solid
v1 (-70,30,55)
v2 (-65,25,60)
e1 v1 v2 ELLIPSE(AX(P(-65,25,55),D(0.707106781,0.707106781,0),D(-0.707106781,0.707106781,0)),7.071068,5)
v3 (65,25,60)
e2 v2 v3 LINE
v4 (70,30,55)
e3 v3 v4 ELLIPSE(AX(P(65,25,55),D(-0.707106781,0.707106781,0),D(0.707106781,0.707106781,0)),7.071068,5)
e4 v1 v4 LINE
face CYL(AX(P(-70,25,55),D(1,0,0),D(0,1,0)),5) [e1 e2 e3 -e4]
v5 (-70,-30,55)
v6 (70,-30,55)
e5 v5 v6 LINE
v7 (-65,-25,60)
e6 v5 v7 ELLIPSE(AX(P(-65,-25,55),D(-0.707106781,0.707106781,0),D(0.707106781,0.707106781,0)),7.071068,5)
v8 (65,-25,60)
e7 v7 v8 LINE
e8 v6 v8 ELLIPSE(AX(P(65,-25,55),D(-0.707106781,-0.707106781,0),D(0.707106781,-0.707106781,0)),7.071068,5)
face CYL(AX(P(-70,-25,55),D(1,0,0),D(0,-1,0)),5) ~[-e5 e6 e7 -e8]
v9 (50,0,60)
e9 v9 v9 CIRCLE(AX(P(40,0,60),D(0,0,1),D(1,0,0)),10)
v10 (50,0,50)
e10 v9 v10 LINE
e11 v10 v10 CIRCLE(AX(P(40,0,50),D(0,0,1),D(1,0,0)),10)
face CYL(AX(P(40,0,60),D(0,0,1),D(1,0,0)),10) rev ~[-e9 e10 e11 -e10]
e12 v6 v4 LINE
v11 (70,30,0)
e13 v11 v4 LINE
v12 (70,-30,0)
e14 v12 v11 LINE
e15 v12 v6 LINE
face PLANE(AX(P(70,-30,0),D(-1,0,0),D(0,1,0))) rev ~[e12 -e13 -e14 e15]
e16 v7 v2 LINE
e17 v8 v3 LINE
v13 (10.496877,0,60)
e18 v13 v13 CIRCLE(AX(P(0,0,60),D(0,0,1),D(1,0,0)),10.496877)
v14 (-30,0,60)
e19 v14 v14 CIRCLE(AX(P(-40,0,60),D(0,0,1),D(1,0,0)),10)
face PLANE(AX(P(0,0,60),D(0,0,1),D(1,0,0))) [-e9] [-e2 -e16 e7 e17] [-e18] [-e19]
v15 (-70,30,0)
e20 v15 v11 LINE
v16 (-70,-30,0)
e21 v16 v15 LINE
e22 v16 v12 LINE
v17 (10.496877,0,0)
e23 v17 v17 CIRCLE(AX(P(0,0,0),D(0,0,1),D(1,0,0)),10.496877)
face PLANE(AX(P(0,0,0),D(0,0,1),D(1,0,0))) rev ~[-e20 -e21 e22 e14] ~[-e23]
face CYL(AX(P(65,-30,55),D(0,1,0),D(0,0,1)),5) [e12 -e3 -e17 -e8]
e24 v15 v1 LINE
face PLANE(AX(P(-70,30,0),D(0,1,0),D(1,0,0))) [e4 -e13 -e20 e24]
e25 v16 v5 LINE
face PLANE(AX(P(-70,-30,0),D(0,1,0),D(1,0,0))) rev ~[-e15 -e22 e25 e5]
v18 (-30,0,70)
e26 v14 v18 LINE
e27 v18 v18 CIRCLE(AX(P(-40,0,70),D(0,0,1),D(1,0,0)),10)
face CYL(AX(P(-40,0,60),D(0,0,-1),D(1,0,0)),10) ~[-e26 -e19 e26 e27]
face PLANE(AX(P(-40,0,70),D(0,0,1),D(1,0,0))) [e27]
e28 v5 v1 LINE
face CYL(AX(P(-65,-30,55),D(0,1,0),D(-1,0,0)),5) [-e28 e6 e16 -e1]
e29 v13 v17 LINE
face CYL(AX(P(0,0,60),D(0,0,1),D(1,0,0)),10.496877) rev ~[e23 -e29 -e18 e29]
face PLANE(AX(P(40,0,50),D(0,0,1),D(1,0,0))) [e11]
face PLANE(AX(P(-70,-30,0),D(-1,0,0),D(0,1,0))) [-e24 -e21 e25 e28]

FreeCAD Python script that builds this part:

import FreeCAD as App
import Part
import Sketcher
Q = App.Units.Quantity


def edges_at(feature, points):
    """Names of the edges that pass closest to the given points."""
    edges = feature.Shape.Edges
    near = lambda p: min(range(len(edges)), key=lambda i: edges[i].distToShape(Part.Vertex(*p))[0])
    return sorted({f"Edge{near(p) + 1}" for p in points})


def add_polygon(sketch, points):
    """Adds a closed chain of lines whose ends are joined by coincident constraints."""
    first, n = sketch.GeometryCount, len(points)
    for a, b in zip(points, points[1:] + points[:1]):
        sketch.addGeometry(Part.LineSegment(App.Vector(*a, 0), App.Vector(*b, 0)), False)
    for i in range(n):
        sketch.addConstraint(Sketcher.Constraint("Coincident", first + i, 2, first + (i + 1) % n, 1))

doc = App.newDocument("Part")
body = doc.addObject("PartDesign::Body", "Body")

# Sketch on XY plane
sketch1 = body.newObject("Sketcher::SketchObject", "Sketch")
sketch1.AttachmentSupport = (doc.getObject("XY_Plane"), [""])
sketch1.MapMode = "FlatFace"
add_polygon(sketch1, [(-70, 30), (-70, -30), (70, -30), (70, 30)])  # lines 0-3
sketch1.addConstraint(Sketcher.Constraint("Vertical", 0))
sketch1.addConstraint(Sketcher.Constraint("Horizontal", 1))
sketch1.addConstraint(Sketcher.Constraint("Vertical", 2))
sketch1.addConstraint(Sketcher.Constraint("Horizontal", 3))
sketch1.addConstraint(Sketcher.Constraint("Symmetric", 0, 2, 2, 2, -1, 1))
sketch1.addConstraint(Sketcher.Constraint("DistanceX", 1, 1, 1, 2, Q("140 mm")))
sketch1.addConstraint(Sketcher.Constraint("DistanceY", 0, 2, 0, 1, Q("60 mm")))
pad1 = body.newObject("PartDesign::Pad", "Pad")
pad1.Profile = sketch1
pad1.Length = 60

# Sketch on XY plane
sketch2 = body.newObject("Sketcher::SketchObject", "Sketch001")
sketch2.AttachmentSupport = (doc.getObject("XY_Plane"), [""])
sketch2.MapMode = "FlatFace"
sketch2.AttachmentOffset = App.Placement(App.Vector(0, 0, 60), App.Rotation())
sketch2.addGeometry(Part.Circle(App.Vector(-40, 0, 0), App.Vector(0, 0, 1), 10), False)
sketch2.addConstraint(Sketcher.Constraint("PointOnObject", 0, 3, -1))
sketch2.addConstraint(Sketcher.Constraint("Diameter", 0, Q("20 mm")))
sketch2.addConstraint(Sketcher.Constraint("DistanceX", 0, 3, -1, 1, Q("40 mm")))
pad2 = body.newObject("PartDesign::Pad", "Pad001")
pad2.Profile = sketch2
pad2.Length = 10

# Sketch on XY plane
sketch3 = body.newObject("Sketcher::SketchObject", "Sketch002")
sketch3.AttachmentSupport = (doc.getObject("XY_Plane"), [""])
sketch3.MapMode = "FlatFace"
sketch3.AttachmentOffset = App.Placement(App.Vector(0, 0, 60), App.Rotation())
sketch3.addGeometry(Part.Circle(App.Vector(0, 0, 0), App.Vector(0, 0, 1), 10), False)
sketch3.addConstraint(Sketcher.Constraint("Coincident", 0, 3, -1, 1))
sketch3.addConstraint(Sketcher.Constraint("Diameter", 0, Q("20.993754 mm")))
pocket1 = body.newObject("PartDesign::Pocket", "Pocket")
pocket1.Profile = sketch3
pocket1.Length = 69.2

# Sketch on XY plane
sketch4 = body.newObject("Sketcher::SketchObject", "Sketch003")
sketch4.AttachmentSupport = (doc.getObject("XY_Plane"), [""])
sketch4.MapMode = "FlatFace"
sketch4.AttachmentOffset = App.Placement(App.Vector(0, 0, 60), App.Rotation())
sketch4.addGeometry(Part.Circle(App.Vector(40, 0, 0), App.Vector(0, 0, 1), 10), False)
sketch4.addConstraint(Sketcher.Constraint("PointOnObject", 0, 3, -1))
sketch4.addConstraint(Sketcher.Constraint("Diameter", 0, Q("20 mm")))
sketch4.addConstraint(Sketcher.Constraint("DistanceX", -1, 1, 0, 3, Q("40 mm")))
pocket2 = body.newObject("PartDesign::Pocket", "Pocket001")
pocket2.Profile = sketch4
pocket2.Length = 10
doc.recompute()

fillet = body.newObject("PartDesign::Fillet", "Fillet")
fillet.Base = (pocket2, edges_at(pocket2, [
    (-70, 0, 60),
    (0, -30, 60),
    (70, 0, 60),
    (0, 30, 60),
]))
fillet.Radius = 5

doc.recompute()
